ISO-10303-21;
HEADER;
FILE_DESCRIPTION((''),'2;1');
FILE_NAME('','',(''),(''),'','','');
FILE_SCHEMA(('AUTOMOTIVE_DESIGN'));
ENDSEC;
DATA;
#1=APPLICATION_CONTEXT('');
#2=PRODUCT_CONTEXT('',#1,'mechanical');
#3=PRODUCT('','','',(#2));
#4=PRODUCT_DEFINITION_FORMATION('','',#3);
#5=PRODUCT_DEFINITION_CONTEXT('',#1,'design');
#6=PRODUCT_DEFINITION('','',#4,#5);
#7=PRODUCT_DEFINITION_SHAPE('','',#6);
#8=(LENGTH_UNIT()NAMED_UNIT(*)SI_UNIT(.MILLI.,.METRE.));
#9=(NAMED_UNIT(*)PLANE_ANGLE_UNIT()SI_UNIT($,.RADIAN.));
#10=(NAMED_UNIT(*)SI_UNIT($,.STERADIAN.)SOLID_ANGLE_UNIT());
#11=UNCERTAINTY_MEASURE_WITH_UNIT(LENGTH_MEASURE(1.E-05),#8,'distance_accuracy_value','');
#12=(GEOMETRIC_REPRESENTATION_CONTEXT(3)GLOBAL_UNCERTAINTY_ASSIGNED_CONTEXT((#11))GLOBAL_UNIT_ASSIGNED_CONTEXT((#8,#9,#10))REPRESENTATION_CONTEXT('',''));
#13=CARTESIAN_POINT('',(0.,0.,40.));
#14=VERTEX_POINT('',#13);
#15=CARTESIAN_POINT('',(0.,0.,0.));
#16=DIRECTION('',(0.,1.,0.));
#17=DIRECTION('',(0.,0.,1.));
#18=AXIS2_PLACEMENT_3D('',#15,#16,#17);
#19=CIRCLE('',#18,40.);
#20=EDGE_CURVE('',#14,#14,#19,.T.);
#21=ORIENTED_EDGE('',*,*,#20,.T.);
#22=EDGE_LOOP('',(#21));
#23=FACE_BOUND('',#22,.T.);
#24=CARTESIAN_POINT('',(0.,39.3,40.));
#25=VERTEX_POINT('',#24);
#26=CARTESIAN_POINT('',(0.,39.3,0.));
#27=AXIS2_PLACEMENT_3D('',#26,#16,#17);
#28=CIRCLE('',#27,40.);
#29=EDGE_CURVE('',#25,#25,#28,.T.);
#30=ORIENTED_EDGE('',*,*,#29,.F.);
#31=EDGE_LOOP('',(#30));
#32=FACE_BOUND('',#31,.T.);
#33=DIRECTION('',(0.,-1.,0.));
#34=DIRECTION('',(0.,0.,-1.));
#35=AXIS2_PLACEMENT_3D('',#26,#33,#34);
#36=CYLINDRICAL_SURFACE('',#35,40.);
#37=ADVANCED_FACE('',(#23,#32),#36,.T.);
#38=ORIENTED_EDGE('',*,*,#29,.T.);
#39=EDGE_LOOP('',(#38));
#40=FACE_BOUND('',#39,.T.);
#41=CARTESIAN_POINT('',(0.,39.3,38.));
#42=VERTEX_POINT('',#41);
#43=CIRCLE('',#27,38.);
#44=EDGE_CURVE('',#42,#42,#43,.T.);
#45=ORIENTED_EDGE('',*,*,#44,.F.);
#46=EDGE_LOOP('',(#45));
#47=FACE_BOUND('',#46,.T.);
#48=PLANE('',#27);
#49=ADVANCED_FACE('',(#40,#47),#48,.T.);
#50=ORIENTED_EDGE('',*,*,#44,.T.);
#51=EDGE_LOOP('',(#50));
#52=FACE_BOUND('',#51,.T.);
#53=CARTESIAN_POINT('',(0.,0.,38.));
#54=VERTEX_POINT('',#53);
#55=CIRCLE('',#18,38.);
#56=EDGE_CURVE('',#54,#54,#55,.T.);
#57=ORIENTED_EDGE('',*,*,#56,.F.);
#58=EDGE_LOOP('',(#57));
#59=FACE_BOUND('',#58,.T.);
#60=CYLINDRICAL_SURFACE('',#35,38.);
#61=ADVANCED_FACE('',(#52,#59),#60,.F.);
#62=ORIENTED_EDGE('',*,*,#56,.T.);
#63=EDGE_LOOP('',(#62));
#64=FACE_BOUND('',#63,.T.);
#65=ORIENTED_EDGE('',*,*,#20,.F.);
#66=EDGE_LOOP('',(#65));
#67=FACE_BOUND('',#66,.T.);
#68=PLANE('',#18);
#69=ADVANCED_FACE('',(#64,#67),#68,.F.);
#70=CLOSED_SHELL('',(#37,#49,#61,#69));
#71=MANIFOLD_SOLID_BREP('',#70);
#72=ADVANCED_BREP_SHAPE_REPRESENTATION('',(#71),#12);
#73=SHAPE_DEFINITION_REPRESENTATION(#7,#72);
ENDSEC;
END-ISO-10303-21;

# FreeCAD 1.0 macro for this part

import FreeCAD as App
import Part
import Sketcher

V = App.Vector

doc = App.newDocument("Part")
body = doc.addObject("PartDesign::Body", "Body")

# Sketch on XZ plane
sketch1 = body.newObject("Sketcher::SketchObject", "Sketch")
sketch1.AttachmentSupport = (doc.getObject("XZ_Plane"), [""])
sketch1.MapMode = "FlatFace"
sketch1.addGeometry([
    Part.Circle(V(0, 0, 0), V(0, 0, 1), 40),
    Part.Circle(V(0, 0, 0), V(0, 0, 1), 38),
], False)
sketch1.addConstraint([
    Sketcher.Constraint("Coincident", 0, 3, -1, 1),
    Sketcher.Constraint("Coincident", 1, 3, -1, 1),
    Sketcher.Constraint("Diameter", 0, 80.0),
    Sketcher.Constraint("Diameter", 1, 76.0),
])
pad1 = body.newObject("PartDesign::Pad", "Pad")
pad1.Profile = sketch1
pad1.Length = 39.3
pad1.Reversed = True

doc.recompute()
